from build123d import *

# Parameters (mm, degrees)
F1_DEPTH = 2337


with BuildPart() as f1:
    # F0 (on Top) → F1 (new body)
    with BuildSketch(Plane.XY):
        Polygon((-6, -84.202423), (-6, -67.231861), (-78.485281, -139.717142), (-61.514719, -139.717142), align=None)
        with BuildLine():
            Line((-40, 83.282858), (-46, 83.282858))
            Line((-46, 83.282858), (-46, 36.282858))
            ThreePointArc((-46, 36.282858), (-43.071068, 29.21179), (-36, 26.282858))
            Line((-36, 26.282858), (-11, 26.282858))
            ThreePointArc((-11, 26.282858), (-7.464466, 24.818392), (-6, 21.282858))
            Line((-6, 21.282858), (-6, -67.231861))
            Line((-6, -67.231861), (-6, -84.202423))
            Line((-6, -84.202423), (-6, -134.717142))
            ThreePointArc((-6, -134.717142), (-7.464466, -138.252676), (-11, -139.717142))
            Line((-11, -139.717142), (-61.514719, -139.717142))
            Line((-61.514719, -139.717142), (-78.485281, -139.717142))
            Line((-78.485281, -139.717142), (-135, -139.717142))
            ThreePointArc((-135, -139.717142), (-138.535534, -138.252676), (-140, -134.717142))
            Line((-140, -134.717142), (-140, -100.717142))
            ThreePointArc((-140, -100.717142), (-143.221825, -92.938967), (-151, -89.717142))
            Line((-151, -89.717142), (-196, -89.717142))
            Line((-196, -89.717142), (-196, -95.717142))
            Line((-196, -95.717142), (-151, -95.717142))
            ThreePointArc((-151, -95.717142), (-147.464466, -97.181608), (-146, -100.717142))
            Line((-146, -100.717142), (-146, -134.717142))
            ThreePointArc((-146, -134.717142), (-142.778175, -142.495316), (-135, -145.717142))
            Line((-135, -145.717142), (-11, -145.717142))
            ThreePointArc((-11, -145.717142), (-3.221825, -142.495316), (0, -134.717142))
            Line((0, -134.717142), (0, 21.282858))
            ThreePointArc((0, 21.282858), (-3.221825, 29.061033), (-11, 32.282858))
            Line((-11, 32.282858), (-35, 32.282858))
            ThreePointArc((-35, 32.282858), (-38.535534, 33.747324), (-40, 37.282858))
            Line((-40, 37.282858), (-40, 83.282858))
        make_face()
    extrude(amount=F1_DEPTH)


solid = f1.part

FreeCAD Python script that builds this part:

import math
import FreeCAD as App
import Part
import Sketcher
Q = App.Units.Quantity

doc = App.newDocument("Part")
body = doc.addObject("PartDesign::Body", "Body")

sketch1 = doc.addObject("Sketcher::SketchObject", "Sketch")
body.addObject(sketch1)
sketch1.AttachmentSupport = (doc.XY_Plane, [""])
sketch1.MapMode = "FlatFace"
sketch1.addGeometry([
    Part.LineSegment(App.Vector(-6, -67.2, 0), App.Vector(-78.5, -139.7, 0)),
    Part.LineSegment(App.Vector(-78.5, -139.7, 0), App.Vector(-135, -139.7, 0)),
    Part.ArcOfCircle(Part.Circle(App.Vector(-135, -134.7, 0), App.Vector(0, 0, 1), 5), math.radians(180), math.radians(270)),
    Part.LineSegment(App.Vector(-140, -134.7, 0), App.Vector(-140, -100.7, 0)),
    Part.ArcOfCircle(Part.Circle(App.Vector(-151, -100.7, 0), App.Vector(0, 0, 1), 11), math.radians(0), math.radians(90)),
    Part.LineSegment(App.Vector(-151, -89.7, 0), App.Vector(-196, -89.7, 0)),
    Part.LineSegment(App.Vector(-196, -89.7, 0), App.Vector(-196, -95.7, 0)),
    Part.LineSegment(App.Vector(-196, -95.7, 0), App.Vector(-151, -95.7, 0)),
    Part.ArcOfCircle(Part.Circle(App.Vector(-151, -100.7, 0), App.Vector(0, 0, 1), 5), math.radians(0), math.radians(90)),
    Part.LineSegment(App.Vector(-146, -100.7, 0), App.Vector(-146, -134.7, 0)),
    Part.ArcOfCircle(Part.Circle(App.Vector(-135, -134.7, 0), App.Vector(0, 0, 1), 11), math.radians(-180), math.radians(-90)),
    Part.LineSegment(App.Vector(-135, -145.7, 0), App.Vector(-11, -145.7, 0)),
    Part.ArcOfCircle(Part.Circle(App.Vector(-11, -134.7, 0), App.Vector(0, 0, 1), 11), math.radians(-90), math.radians(0)),
    Part.LineSegment(App.Vector(0, -134.7, 0), App.Vector(0, 21.3, 0)),
    Part.ArcOfCircle(Part.Circle(App.Vector(-11, 21.3, 0), App.Vector(0, 0, 1), 11), math.radians(0), math.radians(90)),
    Part.LineSegment(App.Vector(-11, 32.3, 0), App.Vector(-35, 32.3, 0)),
    Part.ArcOfCircle(Part.Circle(App.Vector(-35, 37.3, 0), App.Vector(0, 0, 1), 5), math.radians(180), math.radians(270)),
    Part.LineSegment(App.Vector(-40, 37.3, 0), App.Vector(-40, 83.3, 0)),
    Part.LineSegment(App.Vector(-40, 83.3, 0), App.Vector(-46, 83.3, 0)),
    Part.LineSegment(App.Vector(-46, 83.3, 0), App.Vector(-46, 36.3, 0)),
    Part.ArcOfCircle(Part.Circle(App.Vector(-36, 36.3, 0), App.Vector(0, 0, 1), 10), math.radians(180), math.radians(270)),
    Part.LineSegment(App.Vector(-36, 26.3, 0), App.Vector(-11, 26.3, 0)),
    Part.ArcOfCircle(Part.Circle(App.Vector(-11, 21.3, 0), App.Vector(0, 0, 1), 5), math.radians(0), math.radians(90)),
    Part.LineSegment(App.Vector(-6, 21.3, 0), App.Vector(-6, -67.2, 0)),
    Part.LineSegment(App.Vector(-61.5, -139.7, 0), App.Vector(-6, -84.2, 0)),
    Part.LineSegment(App.Vector(-6, -84.2, 0), App.Vector(-6, -134.7, 0)),
    Part.ArcOfCircle(Part.Circle(App.Vector(-11, -134.7, 0), App.Vector(0, 0, 1), 5), math.radians(-90), math.radians(0)),
    Part.LineSegment(App.Vector(-11, -139.7, 0), App.Vector(-61.5, -139.7, 0)),
], False)
sketch1.addConstraint([
    Sketcher.Constraint("Coincident", 0, 2, 1, 1),
    Sketcher.Constraint("Tangent", 1, 2, 2, 2),
    Sketcher.Constraint("Tangent", 2, 1, 3, 1),
    Sketcher.Constraint("Tangent", 3, 2, 4, 1),
    Sketcher.Constraint("Tangent", 4, 2, 5, 1),
    Sketcher.Constraint("Coincident", 5, 2, 6, 1),
    Sketcher.Constraint("Coincident", 6, 2, 7, 1),
    Sketcher.Constraint("Tangent", 7, 2, 8, 2),
    Sketcher.Constraint("Tangent", 8, 1, 9, 1),
    Sketcher.Constraint("Tangent", 9, 2, 10, 1),
    Sketcher.Constraint("Tangent", 10, 2, 11, 1),
    Sketcher.Constraint("Tangent", 11, 2, 12, 1),
    Sketcher.Constraint("Tangent", 12, 2, 13, 1),
    Sketcher.Constraint("Tangent", 13, 2, 14, 1),
    Sketcher.Constraint("Tangent", 14, 2, 15, 1),
    Sketcher.Constraint("Tangent", 15, 2, 16, 2),
    Sketcher.Constraint("Tangent", 16, 1, 17, 1),
    Sketcher.Constraint("Coincident", 17, 2, 18, 1),
    Sketcher.Constraint("Coincident", 18, 2, 19, 1),
    Sketcher.Constraint("Tangent", 19, 2, 20, 1),
    Sketcher.Constraint("Tangent", 20, 2, 21, 1),
    Sketcher.Constraint("Tangent", 21, 2, 22, 2),
    Sketcher.Constraint("Tangent", 22, 1, 23, 1),
    Sketcher.Constraint("Coincident", 23, 2, 0, 1),
    Sketcher.Constraint("Coincident", 24, 2, 25, 1),
    Sketcher.Constraint("Tangent", 25, 2, 26, 2),
    Sketcher.Constraint("Tangent", 26, 1, 27, 1),
    Sketcher.Constraint("Coincident", 27, 2, 24, 1),
    Sketcher.Constraint("Horizontal", 1),
    Sketcher.Constraint("Vertical", 3),
    Sketcher.Constraint("Horizontal", 5),
    Sketcher.Constraint("Vertical", 6),
    Sketcher.Constraint("Horizontal", 7),
    Sketcher.Constraint("Vertical", 9),
    Sketcher.Constraint("Horizontal", 11),
    Sketcher.Constraint("Vertical", 13),
    Sketcher.Constraint("Horizontal", 15),
    Sketcher.Constraint("Vertical", 17),
    Sketcher.Constraint("Horizontal", 18),
    Sketcher.Constraint("Vertical", 19),
    Sketcher.Constraint("Horizontal", 21),
    Sketcher.Constraint("Vertical", 23),
    Sketcher.Constraint("Vertical", 25),
    Sketcher.Constraint("Horizontal", 27),
    Sketcher.Constraint("Coincident", 8, 3, 4, 3),
    Sketcher.Constraint("Coincident", 10, 3, 2, 3),
    Sketcher.Constraint("Coincident", 22, 3, 14, 3),
    Sketcher.Constraint("Coincident", 26, 3, 12, 3),
    Sketcher.Constraint("Equal", 2, 8),
    Sketcher.Constraint("Equal", 10, 12),
    Sketcher.Constraint("Equal", 12, 14),
    Sketcher.Constraint("Equal", 8, 16),
    Sketcher.Constraint("Equal", 16, 22),
    Sketcher.Constraint("Equal", 22, 26),
    Sketcher.Constraint("PointOnObject", 12, 2, -2),
    Sketcher.Constraint("Parallel", 0, 24),
    Sketcher.Constraint("Equal", 18, 6),
    Sketcher.Constraint("Equal", 27, 25),
    Sketcher.Constraint("Radius", 2, Q("5 mm")),
    Sketcher.Constraint("Radius", 4, Q("10.999999 mm")),
    Sketcher.Constraint("Radius", 20, Q("9.999999 mm")),
    Sketcher.Constraint("DistanceX", 5, 2, 5, 1, Q("45 mm")),
    Sketcher.Constraint("DistanceX", 11, 1, 11, 2, Q("124 mm")),
    Sketcher.Constraint("DistanceX", 15, 2, 15, 1, Q("24 mm")),
    Sketcher.Constraint("DistanceY", 3, 1, 3, 2, Q("34 mm")),
    Sketcher.Constraint("DistanceY", 13, 1, 13, 2, Q("156 mm")),
    Sketcher.Constraint("DistanceY", 17, 1, 17, 2, Q("46 mm")),
    Sketcher.Constraint("DistanceX", 1, 2, 1, 1, Q("56.514719 mm")),
    Sketcher.Constraint("DistanceX", 27, 2, 27, 1, Q("50.514719 mm")),
    Sketcher.Constraint("DistanceY", 4, 3, -1, 1, Q("100.717141 mm")),
])
pad1 = doc.addObject("PartDesign::Pad", "Pad")
body.addObject(pad1)
pad1.Profile = sketch1
pad1.Length = 2337

doc.recompute()
